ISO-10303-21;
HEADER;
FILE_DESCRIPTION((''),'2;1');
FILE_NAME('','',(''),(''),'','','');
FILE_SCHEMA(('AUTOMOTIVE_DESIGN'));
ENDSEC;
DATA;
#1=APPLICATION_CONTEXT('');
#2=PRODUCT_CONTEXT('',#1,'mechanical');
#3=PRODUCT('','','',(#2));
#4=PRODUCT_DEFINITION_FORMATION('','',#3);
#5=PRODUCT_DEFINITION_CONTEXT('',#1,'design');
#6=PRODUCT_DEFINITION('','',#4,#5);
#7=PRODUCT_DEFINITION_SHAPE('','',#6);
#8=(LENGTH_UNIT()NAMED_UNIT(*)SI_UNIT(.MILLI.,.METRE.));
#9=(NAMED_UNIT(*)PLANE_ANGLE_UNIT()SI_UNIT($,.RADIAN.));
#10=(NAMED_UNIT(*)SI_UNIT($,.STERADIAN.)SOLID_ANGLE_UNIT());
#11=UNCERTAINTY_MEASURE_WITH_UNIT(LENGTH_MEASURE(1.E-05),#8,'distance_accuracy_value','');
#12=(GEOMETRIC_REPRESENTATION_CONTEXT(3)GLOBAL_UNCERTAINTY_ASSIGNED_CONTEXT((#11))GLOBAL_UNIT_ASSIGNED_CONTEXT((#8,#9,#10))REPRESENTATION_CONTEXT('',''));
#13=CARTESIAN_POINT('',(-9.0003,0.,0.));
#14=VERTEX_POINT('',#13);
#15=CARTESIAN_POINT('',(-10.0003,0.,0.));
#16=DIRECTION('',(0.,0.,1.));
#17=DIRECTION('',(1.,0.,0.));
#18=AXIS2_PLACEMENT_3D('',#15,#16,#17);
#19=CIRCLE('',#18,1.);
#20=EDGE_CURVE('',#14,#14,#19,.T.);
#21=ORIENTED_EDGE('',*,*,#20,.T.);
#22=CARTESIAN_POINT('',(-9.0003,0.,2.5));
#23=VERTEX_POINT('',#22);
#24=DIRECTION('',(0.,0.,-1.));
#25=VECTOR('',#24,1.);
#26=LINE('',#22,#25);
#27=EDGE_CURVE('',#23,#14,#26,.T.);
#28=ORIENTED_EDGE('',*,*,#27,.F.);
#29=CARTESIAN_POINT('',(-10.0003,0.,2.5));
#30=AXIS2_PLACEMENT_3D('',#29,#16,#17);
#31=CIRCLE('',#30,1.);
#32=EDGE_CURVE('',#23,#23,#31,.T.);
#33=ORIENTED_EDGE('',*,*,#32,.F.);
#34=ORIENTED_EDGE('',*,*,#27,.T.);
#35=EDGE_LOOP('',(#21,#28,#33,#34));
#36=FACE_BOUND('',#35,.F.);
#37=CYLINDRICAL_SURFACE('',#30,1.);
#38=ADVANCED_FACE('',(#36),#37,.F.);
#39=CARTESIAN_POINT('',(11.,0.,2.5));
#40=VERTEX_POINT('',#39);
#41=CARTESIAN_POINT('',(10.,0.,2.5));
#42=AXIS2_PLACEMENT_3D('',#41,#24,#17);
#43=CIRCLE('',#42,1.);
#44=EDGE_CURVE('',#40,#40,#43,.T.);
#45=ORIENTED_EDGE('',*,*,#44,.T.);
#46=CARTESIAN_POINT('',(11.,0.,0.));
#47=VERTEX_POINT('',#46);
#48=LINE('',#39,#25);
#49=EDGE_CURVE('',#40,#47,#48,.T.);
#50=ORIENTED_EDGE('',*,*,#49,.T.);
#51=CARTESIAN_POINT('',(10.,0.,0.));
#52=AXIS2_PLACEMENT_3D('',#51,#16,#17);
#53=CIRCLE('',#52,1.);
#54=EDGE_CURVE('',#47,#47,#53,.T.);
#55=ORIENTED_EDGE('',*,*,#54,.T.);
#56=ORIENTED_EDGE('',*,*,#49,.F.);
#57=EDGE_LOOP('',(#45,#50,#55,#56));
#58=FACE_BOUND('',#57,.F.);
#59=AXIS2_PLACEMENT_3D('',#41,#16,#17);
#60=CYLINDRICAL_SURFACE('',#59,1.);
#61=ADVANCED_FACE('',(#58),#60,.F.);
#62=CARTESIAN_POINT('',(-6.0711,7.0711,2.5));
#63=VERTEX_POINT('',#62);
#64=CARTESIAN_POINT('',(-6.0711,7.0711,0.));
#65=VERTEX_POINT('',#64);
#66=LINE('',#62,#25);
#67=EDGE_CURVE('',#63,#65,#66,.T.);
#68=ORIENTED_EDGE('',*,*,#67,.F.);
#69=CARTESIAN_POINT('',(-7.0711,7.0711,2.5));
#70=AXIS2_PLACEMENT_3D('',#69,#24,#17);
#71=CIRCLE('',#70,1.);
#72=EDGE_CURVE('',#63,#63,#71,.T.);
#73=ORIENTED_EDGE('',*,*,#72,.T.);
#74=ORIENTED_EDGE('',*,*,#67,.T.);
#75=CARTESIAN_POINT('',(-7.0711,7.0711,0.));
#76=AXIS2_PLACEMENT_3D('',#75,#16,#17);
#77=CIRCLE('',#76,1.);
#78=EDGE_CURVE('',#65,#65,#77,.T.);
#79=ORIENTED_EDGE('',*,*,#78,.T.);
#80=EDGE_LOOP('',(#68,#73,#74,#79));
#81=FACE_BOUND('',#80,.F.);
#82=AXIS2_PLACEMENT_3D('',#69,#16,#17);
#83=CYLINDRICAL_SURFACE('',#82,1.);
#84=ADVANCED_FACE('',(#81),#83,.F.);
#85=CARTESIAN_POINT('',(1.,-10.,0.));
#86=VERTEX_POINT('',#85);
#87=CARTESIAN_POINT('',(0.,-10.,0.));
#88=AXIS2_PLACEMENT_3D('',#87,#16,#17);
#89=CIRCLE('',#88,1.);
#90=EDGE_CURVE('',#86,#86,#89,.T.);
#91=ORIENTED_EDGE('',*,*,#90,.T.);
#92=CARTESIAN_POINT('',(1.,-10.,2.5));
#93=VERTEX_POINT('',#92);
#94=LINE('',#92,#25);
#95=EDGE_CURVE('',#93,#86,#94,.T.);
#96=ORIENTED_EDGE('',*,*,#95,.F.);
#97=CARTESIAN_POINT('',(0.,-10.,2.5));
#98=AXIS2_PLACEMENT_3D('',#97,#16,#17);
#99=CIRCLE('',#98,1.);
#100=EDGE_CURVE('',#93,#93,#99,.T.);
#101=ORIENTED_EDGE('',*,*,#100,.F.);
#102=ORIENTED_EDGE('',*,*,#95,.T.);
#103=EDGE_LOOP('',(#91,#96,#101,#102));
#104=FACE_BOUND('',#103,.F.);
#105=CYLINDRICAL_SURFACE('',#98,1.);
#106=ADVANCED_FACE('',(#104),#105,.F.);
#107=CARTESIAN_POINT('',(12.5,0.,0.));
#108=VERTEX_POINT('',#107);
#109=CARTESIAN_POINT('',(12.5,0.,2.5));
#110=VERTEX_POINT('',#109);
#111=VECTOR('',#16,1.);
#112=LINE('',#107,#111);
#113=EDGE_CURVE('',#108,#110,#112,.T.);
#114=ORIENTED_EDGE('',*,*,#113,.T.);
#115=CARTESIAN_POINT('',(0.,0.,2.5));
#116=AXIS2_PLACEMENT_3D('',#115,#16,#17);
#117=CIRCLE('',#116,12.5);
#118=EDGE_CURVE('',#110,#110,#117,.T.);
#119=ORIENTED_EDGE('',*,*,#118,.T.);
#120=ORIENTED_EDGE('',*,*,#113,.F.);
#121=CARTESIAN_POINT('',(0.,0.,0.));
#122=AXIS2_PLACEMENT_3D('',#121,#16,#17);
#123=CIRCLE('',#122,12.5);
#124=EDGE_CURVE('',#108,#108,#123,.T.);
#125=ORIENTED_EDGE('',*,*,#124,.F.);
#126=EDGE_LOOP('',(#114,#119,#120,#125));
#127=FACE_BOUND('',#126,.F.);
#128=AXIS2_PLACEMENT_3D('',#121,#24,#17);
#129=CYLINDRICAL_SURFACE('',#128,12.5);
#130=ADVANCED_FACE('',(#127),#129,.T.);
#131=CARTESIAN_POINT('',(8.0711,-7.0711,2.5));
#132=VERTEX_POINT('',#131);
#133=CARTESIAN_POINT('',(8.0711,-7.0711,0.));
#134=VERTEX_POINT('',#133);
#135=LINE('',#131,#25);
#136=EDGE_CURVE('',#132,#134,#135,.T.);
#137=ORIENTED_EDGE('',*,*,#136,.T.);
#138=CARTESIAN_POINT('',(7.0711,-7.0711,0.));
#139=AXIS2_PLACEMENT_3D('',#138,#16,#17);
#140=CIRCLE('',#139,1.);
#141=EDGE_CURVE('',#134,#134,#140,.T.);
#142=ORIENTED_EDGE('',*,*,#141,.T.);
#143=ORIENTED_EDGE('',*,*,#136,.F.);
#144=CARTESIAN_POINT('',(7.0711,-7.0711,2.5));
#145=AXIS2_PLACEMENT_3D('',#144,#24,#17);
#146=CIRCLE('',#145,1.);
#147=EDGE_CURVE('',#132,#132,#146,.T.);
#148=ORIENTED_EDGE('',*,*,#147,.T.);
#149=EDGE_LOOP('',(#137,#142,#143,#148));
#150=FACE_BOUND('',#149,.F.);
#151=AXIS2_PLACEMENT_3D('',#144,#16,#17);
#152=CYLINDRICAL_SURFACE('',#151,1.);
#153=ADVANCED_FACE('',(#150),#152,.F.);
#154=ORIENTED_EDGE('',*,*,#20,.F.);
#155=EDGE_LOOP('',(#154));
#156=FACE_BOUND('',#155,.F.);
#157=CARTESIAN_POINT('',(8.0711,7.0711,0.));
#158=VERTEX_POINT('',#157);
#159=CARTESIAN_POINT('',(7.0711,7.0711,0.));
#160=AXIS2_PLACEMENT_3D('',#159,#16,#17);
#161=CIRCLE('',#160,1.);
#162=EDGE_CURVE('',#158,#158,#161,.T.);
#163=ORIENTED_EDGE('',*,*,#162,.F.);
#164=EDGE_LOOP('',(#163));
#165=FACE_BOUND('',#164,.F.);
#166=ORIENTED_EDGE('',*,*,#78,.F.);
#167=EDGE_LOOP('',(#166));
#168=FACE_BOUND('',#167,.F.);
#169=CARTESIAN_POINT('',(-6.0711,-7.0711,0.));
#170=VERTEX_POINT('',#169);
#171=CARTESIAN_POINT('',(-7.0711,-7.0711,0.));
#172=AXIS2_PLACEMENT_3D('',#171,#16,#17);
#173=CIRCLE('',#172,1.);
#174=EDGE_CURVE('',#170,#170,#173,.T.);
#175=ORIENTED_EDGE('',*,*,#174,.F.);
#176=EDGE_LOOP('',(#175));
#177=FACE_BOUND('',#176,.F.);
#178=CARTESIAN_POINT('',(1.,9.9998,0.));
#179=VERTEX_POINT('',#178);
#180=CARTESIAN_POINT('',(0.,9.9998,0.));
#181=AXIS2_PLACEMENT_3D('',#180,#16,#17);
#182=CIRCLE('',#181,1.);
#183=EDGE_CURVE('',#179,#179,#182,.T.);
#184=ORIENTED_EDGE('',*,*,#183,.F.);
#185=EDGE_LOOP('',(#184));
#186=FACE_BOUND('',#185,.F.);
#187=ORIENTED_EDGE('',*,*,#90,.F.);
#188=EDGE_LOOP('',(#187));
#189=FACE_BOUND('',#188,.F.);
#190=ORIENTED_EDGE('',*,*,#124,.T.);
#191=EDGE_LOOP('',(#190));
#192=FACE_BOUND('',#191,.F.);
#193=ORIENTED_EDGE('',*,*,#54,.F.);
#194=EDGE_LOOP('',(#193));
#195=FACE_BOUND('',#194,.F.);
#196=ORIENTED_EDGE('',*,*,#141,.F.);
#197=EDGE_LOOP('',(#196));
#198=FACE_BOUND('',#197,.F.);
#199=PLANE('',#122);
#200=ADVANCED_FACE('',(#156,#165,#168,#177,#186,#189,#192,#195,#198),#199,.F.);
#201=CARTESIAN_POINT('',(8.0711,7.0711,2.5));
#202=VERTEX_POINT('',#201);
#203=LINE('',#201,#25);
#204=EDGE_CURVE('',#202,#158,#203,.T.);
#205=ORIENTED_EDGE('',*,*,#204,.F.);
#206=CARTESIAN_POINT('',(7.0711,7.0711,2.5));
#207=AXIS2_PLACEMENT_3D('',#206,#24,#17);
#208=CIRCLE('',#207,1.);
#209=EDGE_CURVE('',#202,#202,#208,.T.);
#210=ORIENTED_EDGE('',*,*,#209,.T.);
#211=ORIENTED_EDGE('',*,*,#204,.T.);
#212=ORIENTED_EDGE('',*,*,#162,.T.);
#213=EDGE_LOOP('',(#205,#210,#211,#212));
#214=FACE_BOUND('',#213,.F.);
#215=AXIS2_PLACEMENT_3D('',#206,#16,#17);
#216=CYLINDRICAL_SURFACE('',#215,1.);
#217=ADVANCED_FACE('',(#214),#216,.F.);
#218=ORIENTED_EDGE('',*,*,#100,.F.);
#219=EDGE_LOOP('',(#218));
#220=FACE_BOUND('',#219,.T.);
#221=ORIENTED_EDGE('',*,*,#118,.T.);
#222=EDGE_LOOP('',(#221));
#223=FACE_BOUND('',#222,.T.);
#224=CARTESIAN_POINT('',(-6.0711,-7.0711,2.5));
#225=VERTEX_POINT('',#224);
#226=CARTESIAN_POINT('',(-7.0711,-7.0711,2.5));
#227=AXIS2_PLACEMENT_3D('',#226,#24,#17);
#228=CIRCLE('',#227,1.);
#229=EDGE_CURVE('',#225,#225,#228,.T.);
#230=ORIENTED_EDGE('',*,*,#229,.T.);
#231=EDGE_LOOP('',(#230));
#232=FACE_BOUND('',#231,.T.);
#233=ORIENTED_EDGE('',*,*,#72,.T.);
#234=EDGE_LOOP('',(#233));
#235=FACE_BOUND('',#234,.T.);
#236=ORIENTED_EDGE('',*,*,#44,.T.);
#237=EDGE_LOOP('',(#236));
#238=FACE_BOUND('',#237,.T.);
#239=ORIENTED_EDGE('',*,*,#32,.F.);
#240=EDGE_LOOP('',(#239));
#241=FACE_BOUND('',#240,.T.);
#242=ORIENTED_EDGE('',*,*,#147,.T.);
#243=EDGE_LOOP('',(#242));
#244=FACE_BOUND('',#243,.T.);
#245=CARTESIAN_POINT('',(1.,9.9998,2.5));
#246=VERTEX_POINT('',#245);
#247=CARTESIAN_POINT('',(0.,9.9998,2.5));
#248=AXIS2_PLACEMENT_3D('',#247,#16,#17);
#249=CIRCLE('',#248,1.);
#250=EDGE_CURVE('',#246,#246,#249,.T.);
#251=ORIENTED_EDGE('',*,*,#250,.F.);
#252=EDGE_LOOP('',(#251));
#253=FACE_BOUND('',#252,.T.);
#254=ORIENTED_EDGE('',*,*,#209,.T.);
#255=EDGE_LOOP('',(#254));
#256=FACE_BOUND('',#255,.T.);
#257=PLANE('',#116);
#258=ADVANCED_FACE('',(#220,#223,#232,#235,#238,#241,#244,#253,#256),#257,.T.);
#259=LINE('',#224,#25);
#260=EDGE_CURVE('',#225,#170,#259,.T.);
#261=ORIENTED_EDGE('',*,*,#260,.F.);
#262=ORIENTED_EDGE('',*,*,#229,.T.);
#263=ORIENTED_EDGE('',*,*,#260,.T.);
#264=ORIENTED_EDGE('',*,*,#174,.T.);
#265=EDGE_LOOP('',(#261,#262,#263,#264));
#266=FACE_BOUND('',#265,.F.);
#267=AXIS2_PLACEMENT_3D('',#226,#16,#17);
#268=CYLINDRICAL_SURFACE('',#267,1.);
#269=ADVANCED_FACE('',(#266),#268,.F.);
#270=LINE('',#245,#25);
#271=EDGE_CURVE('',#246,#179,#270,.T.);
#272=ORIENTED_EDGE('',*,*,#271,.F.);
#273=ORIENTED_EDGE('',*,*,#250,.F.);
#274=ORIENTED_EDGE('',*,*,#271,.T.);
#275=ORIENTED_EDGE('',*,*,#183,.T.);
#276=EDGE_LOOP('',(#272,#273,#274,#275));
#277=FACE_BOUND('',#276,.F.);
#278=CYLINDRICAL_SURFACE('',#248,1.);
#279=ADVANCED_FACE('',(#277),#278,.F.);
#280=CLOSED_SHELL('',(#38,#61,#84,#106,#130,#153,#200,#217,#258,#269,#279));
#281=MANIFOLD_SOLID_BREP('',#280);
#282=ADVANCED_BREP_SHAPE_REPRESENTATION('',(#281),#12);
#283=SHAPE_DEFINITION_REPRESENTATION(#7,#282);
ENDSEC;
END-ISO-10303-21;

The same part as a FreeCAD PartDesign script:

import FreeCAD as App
import Part
import Sketcher

V = App.Vector

doc = App.newDocument("Part")
body = doc.addObject("PartDesign::Body", "Body")

# Sketch on XY plane
sketch1 = doc.addObject("Sketcher::SketchObject", "Sketch")
body.addObject(sketch1)
sketch1.AttachmentSupport = (doc.XY_Plane, [""])
sketch1.MapMode = "FlatFace"
sketch1.addGeometry(Part.Circle(V(0, 0, 0), V(0, 0, 1), 12), False)
sketch1.addConstraint([
    Sketcher.Constraint("Coincident", 0, 3, -1, 1),
    Sketcher.Constraint("Diameter", 0, 25.0),
])
pad1 = doc.addObject("PartDesign::Pad", "Pad")
body.addObject(pad1)
pad1.Profile = sketch1
pad1.Length = 2.5

# Sketch on XY plane
sketch2 = doc.addObject("Sketcher::SketchObject", "Sketch001")
body.addObject(sketch2)
sketch2.AttachmentSupport = (doc.XY_Plane, [""])
sketch2.MapMode = "FlatFace"
sketch2.AttachmentOffset = App.Placement(V(0, 0, 2.5), App.Rotation())
sketch2.addGeometry(Part.Circle(V(0, 10, 0), V(0, 0, 1), 1), False)
sketch2.addConstraint([
    Sketcher.Constraint("PointOnObject", 0, 3, -2),
    Sketcher.Constraint("Diameter", 0, 2.0),
    Sketcher.Constraint("DistanceY", -1, 1, 0, 3, 9.9998),
])
pocket1 = doc.addObject("PartDesign::Pocket", "Pocket")
body.addObject(pocket1)
pocket1.Profile = sketch2
pocket1.Length = 2.5

# Sketch on XY plane
sketch3 = doc.addObject("Sketcher::SketchObject", "Sketch002")
body.addObject(sketch3)
sketch3.AttachmentSupport = (doc.XY_Plane, [""])
sketch3.MapMode = "FlatFace"
sketch3.AttachmentOffset = App.Placement(V(0, 0, 2.5), App.Rotation())
sketch3.addGeometry([
    Part.Circle(V(-10, 0, 0), V(0, 0, 1), 1),
    Part.Circle(V(10, 0, 0), V(0, 0, 1), 1),
], False)
sketch3.addConstraint([
    Sketcher.Constraint("Equal", 0, 1),
    Sketcher.Constraint("Symmetric", 0, 3, 1, 3, -1, 1),
    Sketcher.Constraint("PointOnObject", 0, 3, -1),
    Sketcher.Constraint("Diameter", 0, 2.0),
    Sketcher.Constraint("DistanceX", -1, 1, 1, 3, 10.0),
])
pocket2 = doc.addObject("PartDesign::Pocket", "Pocket001")
body.addObject(pocket2)
pocket2.Profile = sketch3
pocket2.Length = 2.5

# Sketch on XY plane
sketch4 = doc.addObject("Sketcher::SketchObject", "Sketch003")
body.addObject(sketch4)
sketch4.AttachmentSupport = (doc.XY_Plane, [""])
sketch4.MapMode = "FlatFace"
sketch4.AttachmentOffset = App.Placement(V(0, 0, 2.5), App.Rotation())
sketch4.addGeometry(Part.Circle(V(0, -10, 0), V(0, 0, 1), 1), False)
sketch4.addConstraint([
    Sketcher.Constraint("PointOnObject", 0, 3, -2),
    Sketcher.Constraint("Diameter", 0, 2.0),
    Sketcher.Constraint("DistanceY", 0, 3, -1, 1, 10.0),
])
pocket3 = doc.addObject("PartDesign::Pocket", "Pocket002")
body.addObject(pocket3)
pocket3.Profile = sketch4
pocket3.Length = 2.5

# Sketch on XY plane
sketch5 = doc.addObject("Sketcher::SketchObject", "Sketch004")
body.addObject(sketch5)
sketch5.AttachmentSupport = (doc.XY_Plane, [""])
sketch5.MapMode = "FlatFace"
sketch5.AttachmentOffset = App.Placement(V(0, 0, 2.5), App.Rotation())
sketch5.addGeometry([
    Part.Circle(V(7.1, 7.1, 0), V(0, 0, 1), 1),
    Part.Circle(V(-7.1, 7.1, 0), V(0, 0, 1), 1),
], False)
sketch5.addConstraint([
    Sketcher.Constraint("Equal", 0, 1),
    Sketcher.Constraint("Symmetric", 0, 3, 1, 3, -2),
    Sketcher.Constraint("Diameter", 0, 2.0),
    Sketcher.Constraint("DistanceX", -1, 1, 0, 3, 7.071),
    Sketcher.Constraint("DistanceY", -1, 1, 0, 3, 7.071),
])
pocket4 = doc.addObject("PartDesign::Pocket", "Pocket003")
body.addObject(pocket4)
pocket4.Profile = sketch5
pocket4.Length = 2.5

# Sketch on XY plane
sketch6 = doc.addObject("Sketcher::SketchObject", "Sketch005")
body.addObject(sketch6)
sketch6.AttachmentSupport = (doc.XY_Plane, [""])
sketch6.MapMode = "FlatFace"
sketch6.AttachmentOffset = App.Placement(V(0, 0, 2.5), App.Rotation())
sketch6.addGeometry([
    Part.Circle(V(-7.1, -7.1, 0), V(0, 0, 1), 1),
    Part.Circle(V(7.1, -7.1, 0), V(0, 0, 1), 1),
], False)
sketch6.addConstraint([
    Sketcher.Constraint("Equal", 0, 1),
    Sketcher.Constraint("Symmetric", 0, 3, 1, 3, -2),
    Sketcher.Constraint("Diameter", 0, 2.0),
    Sketcher.Constraint("DistanceX", 0, 3, -1, 1, 7.071),
    Sketcher.Constraint("DistanceY", 0, 3, -1, 1, 7.071),
])
pocket5 = doc.addObject("PartDesign::Pocket", "Pocket004")
body.addObject(pocket5)
pocket5.Profile = sketch6
pocket5.Length = 2.5

doc.recompute()
